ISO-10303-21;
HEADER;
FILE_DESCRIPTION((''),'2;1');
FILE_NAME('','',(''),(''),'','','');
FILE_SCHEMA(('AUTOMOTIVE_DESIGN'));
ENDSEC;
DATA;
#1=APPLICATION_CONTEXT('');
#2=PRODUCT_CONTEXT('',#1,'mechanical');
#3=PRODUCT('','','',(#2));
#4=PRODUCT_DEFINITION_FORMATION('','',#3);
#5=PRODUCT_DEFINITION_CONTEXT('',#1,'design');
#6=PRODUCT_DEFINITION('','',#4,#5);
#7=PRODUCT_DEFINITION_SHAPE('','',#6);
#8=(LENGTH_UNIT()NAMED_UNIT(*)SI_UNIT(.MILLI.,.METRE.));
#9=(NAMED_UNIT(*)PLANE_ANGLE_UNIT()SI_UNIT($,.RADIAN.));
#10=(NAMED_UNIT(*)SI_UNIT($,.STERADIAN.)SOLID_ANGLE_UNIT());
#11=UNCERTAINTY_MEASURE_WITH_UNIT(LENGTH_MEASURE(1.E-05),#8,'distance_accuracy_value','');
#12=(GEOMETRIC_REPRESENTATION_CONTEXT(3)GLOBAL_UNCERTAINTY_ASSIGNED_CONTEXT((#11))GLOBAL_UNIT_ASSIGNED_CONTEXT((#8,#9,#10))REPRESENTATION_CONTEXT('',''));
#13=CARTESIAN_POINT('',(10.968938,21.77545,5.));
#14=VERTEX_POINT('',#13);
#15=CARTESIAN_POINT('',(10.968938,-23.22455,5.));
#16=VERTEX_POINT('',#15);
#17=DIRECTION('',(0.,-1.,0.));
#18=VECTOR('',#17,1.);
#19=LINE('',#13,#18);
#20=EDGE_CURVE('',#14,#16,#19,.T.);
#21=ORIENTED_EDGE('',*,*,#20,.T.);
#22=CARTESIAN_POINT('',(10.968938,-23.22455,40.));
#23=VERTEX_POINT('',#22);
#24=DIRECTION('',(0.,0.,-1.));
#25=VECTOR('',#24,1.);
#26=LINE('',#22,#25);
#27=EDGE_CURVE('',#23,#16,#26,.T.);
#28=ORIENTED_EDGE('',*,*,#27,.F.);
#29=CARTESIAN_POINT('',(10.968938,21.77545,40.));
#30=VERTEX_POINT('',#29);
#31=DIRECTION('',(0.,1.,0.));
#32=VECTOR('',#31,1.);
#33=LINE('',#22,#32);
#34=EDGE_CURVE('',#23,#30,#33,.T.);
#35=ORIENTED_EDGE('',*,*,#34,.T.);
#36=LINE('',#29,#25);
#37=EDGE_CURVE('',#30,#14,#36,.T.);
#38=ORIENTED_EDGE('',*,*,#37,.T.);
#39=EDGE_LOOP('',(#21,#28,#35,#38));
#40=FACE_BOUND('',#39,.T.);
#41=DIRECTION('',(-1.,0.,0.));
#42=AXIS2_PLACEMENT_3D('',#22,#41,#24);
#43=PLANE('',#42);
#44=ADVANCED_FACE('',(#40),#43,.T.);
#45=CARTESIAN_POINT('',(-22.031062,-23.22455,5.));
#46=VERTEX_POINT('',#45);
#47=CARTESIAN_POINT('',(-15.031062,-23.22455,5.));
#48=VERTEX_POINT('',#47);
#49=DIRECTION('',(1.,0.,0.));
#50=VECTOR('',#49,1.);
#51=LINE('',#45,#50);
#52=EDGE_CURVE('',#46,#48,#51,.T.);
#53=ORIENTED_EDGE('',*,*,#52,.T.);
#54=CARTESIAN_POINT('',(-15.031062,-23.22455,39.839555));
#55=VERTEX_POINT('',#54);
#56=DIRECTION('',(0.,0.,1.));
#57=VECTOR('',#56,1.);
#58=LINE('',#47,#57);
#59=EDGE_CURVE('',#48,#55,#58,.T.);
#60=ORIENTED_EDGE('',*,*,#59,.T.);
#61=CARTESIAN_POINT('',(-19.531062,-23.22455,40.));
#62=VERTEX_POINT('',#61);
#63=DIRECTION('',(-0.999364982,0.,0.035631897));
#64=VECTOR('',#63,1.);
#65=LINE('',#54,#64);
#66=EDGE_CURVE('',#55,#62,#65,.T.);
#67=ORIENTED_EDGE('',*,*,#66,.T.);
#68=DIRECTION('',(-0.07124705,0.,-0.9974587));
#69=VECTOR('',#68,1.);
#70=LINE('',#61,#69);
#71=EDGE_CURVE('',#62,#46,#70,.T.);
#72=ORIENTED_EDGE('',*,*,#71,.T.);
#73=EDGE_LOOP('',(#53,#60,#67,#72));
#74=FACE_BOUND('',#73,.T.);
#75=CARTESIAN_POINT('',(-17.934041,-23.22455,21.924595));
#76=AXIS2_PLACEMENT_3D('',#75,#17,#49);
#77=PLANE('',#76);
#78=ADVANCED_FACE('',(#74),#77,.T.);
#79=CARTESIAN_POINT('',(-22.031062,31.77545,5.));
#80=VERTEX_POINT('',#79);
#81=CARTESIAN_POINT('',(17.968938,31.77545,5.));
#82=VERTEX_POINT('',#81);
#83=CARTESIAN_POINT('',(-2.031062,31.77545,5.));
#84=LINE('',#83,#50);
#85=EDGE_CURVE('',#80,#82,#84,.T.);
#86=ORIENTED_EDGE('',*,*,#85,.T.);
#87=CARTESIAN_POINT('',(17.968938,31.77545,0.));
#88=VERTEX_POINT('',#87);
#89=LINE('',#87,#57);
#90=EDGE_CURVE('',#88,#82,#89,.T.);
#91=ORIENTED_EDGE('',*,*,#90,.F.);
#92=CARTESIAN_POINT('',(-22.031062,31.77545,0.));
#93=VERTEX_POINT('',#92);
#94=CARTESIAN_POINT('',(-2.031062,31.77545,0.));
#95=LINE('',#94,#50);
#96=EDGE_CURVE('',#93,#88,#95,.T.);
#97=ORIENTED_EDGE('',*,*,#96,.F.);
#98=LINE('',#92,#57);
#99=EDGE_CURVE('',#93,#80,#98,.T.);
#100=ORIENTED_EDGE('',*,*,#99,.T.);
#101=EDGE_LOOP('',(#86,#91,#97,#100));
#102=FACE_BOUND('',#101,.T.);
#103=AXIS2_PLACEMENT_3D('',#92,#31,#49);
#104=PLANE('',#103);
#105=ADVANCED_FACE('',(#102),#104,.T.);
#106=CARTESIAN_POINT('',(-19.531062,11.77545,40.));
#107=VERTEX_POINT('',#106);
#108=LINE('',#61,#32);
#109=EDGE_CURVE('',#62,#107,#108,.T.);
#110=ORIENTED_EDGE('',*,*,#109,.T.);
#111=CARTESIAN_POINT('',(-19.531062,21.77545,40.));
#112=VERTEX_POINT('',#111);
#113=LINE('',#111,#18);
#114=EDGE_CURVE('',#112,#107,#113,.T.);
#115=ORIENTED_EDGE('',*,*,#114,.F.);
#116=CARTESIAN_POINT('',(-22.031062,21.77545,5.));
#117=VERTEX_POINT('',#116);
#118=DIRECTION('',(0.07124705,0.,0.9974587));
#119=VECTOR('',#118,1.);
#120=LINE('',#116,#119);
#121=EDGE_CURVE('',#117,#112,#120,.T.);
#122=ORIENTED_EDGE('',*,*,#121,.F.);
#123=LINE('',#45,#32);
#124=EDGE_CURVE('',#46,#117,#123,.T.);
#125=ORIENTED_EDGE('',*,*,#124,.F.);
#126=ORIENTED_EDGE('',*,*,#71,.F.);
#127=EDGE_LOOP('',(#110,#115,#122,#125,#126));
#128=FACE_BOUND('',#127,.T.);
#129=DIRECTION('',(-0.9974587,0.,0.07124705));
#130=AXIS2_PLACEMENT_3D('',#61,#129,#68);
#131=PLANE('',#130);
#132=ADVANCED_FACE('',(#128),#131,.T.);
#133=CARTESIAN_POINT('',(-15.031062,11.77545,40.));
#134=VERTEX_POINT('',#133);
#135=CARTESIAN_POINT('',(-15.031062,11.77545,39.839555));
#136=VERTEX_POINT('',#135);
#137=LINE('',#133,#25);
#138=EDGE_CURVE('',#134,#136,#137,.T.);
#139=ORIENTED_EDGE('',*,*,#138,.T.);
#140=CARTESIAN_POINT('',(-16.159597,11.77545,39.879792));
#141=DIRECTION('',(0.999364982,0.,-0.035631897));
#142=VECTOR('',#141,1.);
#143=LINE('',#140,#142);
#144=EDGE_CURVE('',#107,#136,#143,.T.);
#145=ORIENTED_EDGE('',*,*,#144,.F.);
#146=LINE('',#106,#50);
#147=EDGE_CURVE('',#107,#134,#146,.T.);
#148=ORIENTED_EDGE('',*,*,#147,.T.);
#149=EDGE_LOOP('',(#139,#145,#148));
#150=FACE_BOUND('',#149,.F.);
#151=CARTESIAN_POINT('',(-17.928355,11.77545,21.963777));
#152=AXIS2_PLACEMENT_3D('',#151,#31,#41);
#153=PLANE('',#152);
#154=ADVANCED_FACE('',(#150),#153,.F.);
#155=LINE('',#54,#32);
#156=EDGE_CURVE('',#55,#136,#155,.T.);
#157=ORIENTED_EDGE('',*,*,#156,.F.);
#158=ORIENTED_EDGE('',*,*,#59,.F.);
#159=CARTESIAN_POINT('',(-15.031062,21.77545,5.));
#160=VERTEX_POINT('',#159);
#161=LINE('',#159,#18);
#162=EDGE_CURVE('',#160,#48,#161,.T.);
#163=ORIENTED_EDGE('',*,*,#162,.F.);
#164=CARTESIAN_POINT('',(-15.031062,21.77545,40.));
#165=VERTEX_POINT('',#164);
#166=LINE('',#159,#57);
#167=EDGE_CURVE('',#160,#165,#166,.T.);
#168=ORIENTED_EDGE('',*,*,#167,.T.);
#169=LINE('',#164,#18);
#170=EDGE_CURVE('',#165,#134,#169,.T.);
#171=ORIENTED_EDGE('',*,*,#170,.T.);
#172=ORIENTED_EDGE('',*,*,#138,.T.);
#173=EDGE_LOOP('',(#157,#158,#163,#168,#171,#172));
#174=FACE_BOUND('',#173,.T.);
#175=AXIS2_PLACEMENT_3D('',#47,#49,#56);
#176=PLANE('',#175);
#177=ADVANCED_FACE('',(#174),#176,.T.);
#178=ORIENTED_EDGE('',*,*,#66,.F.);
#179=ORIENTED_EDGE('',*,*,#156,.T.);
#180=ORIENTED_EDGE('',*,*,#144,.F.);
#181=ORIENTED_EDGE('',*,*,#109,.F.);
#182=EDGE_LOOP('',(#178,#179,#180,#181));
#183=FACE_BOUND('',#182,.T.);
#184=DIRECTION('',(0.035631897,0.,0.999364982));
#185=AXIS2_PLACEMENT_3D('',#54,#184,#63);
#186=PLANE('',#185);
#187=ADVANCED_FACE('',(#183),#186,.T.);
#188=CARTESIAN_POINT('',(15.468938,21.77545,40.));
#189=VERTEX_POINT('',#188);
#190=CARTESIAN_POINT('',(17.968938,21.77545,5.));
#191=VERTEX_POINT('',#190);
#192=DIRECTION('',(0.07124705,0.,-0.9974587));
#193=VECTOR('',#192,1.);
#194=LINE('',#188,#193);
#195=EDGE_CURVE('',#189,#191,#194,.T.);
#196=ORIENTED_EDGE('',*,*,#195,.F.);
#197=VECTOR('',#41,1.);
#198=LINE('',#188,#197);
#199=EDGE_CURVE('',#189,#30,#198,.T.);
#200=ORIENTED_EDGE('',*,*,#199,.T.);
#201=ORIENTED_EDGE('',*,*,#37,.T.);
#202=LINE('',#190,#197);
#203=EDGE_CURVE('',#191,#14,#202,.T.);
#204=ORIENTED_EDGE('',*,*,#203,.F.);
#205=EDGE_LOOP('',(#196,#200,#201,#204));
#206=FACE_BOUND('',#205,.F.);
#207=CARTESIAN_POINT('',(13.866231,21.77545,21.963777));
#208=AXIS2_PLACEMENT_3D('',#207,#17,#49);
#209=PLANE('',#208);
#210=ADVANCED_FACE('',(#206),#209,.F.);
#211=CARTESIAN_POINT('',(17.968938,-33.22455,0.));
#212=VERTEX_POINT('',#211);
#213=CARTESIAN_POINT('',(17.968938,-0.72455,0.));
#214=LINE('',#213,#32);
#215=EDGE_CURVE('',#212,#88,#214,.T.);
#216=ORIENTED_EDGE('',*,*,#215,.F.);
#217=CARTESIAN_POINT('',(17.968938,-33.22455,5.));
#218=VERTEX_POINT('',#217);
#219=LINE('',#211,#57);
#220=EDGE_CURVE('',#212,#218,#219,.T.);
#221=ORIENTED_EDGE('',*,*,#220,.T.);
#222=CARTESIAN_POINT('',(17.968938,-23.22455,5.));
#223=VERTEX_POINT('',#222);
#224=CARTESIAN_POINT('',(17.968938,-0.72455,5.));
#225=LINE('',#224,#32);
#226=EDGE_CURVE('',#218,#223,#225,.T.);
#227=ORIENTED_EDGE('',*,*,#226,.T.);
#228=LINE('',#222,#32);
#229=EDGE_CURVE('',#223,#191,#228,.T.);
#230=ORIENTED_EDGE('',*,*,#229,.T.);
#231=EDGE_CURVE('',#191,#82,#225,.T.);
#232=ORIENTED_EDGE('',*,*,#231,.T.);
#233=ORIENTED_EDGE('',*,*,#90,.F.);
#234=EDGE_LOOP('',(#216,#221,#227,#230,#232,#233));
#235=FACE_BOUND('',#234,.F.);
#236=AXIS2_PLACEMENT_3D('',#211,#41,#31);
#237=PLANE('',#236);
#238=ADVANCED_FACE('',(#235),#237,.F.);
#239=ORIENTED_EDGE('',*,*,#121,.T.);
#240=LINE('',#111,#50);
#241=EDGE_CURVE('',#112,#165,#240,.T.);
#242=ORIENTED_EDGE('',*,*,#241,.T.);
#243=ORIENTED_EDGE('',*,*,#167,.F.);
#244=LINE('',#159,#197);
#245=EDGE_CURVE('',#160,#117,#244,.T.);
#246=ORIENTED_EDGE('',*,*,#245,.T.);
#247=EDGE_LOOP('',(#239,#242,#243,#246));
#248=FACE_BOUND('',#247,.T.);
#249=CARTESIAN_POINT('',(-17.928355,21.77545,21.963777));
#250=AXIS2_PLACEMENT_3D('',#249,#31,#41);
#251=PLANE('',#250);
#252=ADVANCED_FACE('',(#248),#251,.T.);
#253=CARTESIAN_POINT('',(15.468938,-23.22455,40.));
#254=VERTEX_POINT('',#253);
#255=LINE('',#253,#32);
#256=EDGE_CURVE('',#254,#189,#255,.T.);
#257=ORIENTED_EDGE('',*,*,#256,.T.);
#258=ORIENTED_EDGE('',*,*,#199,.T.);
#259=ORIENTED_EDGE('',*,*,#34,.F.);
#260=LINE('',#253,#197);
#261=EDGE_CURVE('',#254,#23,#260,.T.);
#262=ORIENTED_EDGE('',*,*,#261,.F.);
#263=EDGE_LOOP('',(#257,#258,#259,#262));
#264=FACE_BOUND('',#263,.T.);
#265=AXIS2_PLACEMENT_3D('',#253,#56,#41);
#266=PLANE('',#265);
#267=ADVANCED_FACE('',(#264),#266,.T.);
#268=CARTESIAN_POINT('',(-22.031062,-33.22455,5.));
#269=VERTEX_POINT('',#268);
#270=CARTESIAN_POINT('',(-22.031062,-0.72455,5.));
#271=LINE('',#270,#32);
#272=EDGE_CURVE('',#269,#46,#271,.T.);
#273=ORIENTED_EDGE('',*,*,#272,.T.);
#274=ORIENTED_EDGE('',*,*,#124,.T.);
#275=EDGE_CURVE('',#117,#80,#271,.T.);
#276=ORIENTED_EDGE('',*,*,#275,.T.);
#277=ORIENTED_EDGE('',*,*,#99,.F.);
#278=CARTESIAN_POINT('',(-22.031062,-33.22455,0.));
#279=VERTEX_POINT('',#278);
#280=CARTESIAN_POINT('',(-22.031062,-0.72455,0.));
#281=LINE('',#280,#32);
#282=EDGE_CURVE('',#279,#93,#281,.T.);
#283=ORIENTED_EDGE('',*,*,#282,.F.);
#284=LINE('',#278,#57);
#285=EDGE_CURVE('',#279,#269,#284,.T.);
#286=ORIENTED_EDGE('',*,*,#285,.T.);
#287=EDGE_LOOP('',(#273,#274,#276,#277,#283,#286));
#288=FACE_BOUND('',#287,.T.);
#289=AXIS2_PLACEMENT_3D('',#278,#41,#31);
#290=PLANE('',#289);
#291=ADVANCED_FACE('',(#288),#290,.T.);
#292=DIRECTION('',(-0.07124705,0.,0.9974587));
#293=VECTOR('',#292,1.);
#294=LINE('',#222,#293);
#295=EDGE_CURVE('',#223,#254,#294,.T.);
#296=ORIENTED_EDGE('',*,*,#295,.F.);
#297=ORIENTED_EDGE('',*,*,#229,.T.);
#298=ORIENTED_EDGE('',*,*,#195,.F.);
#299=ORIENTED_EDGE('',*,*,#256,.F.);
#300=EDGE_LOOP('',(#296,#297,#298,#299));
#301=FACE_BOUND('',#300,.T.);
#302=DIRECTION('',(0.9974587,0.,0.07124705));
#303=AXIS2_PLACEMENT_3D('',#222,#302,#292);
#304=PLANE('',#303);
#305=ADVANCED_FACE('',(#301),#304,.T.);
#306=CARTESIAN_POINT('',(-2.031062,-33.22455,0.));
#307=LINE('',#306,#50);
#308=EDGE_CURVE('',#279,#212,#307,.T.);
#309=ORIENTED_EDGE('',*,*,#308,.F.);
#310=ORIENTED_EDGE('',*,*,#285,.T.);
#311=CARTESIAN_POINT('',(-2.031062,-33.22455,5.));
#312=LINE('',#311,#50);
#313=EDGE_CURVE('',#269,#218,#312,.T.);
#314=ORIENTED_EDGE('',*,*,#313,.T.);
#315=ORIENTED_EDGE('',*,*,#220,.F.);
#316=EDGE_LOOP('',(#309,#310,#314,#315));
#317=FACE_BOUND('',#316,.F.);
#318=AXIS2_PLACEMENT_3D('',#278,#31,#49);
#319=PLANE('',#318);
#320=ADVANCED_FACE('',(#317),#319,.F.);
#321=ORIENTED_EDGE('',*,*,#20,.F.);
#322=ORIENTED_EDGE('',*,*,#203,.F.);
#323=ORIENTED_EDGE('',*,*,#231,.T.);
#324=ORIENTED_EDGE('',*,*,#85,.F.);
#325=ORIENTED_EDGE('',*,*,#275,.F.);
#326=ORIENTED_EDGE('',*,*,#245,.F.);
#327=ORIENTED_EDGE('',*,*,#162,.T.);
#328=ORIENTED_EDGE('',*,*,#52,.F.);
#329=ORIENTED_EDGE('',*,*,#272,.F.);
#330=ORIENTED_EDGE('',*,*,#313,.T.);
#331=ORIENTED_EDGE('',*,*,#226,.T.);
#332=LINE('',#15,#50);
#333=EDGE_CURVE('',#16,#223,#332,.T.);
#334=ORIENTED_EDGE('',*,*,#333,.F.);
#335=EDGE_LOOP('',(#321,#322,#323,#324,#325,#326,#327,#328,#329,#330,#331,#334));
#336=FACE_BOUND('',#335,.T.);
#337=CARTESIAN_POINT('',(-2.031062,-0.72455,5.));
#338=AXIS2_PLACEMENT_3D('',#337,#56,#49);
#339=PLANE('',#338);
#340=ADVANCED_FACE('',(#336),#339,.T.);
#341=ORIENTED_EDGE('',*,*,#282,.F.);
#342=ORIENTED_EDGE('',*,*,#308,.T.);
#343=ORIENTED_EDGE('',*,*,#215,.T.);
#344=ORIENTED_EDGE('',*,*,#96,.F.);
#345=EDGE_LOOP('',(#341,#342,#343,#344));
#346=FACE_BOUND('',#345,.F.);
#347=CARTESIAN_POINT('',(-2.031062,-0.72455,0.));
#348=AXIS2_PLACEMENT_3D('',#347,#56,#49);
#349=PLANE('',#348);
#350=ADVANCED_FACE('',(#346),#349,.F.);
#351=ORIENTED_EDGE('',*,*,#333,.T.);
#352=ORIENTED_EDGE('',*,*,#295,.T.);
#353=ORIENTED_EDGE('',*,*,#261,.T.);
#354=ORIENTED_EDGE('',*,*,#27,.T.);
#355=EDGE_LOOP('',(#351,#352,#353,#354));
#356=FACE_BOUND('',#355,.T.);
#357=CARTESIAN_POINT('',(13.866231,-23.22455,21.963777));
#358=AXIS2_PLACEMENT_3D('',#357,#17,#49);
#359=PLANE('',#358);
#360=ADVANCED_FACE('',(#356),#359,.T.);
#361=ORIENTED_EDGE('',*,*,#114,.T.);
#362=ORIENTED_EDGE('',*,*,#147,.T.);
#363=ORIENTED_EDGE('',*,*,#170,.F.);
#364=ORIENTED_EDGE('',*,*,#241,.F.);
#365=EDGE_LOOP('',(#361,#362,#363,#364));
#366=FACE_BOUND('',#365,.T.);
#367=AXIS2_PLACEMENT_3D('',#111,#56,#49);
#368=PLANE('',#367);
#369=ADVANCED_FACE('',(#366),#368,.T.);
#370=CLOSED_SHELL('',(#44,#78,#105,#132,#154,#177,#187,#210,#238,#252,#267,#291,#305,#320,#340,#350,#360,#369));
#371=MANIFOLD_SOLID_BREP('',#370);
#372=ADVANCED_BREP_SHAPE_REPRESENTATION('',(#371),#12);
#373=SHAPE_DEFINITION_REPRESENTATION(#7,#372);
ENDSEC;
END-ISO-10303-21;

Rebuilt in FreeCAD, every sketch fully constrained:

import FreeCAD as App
import Part
import Sketcher
from FreeCAD import Vector


def add_polygon(sketch, points):
    """Adds a closed chain of lines whose ends are joined by coincident constraints."""
    first, n = sketch.GeometryCount, len(points)
    for a, b in zip(points, points[1:] + points[:1]):
        sketch.addGeometry(Part.LineSegment(App.Vector(*a, 0), App.Vector(*b, 0)), False)
    for i in range(n):
        sketch.addConstraint(Sketcher.Constraint("Coincident", first + i, 2, first + (i + 1) % n, 1))

doc = App.newDocument("Part")
body = doc.addObject("PartDesign::Body", "Body")

# Sketch on XY plane
sketch1 = body.newObject("Sketcher::SketchObject", "Sketch")
sketch1.AttachmentSupport = (doc.getObject("XY_Plane"), [""])
sketch1.MapMode = "FlatFace"
add_polygon(sketch1, [(-22, 32), (-22, -33), (18, -33), (18, 32)])  # lines 0-3
sketch1.addConstraint(Sketcher.Constraint("Vertical", 0))
sketch1.addConstraint(Sketcher.Constraint("Horizontal", 1))
sketch1.addConstraint(Sketcher.Constraint("Vertical", 2))
sketch1.addConstraint(Sketcher.Constraint("Horizontal", 3))
sketch1.addConstraint(Sketcher.Constraint("DistanceX", 1, 1, 1, 2, 40.0))
sketch1.addConstraint(Sketcher.Constraint("DistanceY", 0, 2, 0, 1, 65.0))
sketch1.addConstraint(Sketcher.Constraint("DistanceX", 0, 2, -1, 1, 22.031062))
sketch1.addConstraint(Sketcher.Constraint("DistanceY", 0, 2, -1, 1, 33.22455))
pad1 = body.newObject("PartDesign::Pad", "Pad")
pad1.Profile = sketch1
pad1.Length = 5

# Sketch on XZ plane
sketch2 = body.newObject("Sketcher::SketchObject", "Sketch001")
sketch2.AttachmentSupport = (doc.getObject("XZ_Plane"), [""])
sketch2.MapMode = "FlatFace"
sketch2.AttachmentOffset = App.Placement(Vector(0, 0, -21.77545), App.Rotation())
add_polygon(sketch2, [(-15, 40), (-15, 5), (-22, 5), (-19.5, 40)])  # lines 0-3
add_polygon(sketch2, [(18, 5), (11, 5), (11, 39.8), (15.5, 40)])  # lines 4-7
sketch2.addConstraint(Sketcher.Constraint("Vertical", 0))
sketch2.addConstraint(Sketcher.Constraint("Horizontal", 1))
sketch2.addConstraint(Sketcher.Constraint("Horizontal", 3))
sketch2.addConstraint(Sketcher.Constraint("Horizontal", 4))
sketch2.addConstraint(Sketcher.Constraint("Vertical", 5))
sketch2.addConstraint(Sketcher.Constraint("Horizontal", 1, 2, 4, 2))
sketch2.addConstraint(Sketcher.Constraint("Horizontal", 3, 2, 6, 2))
sketch2.addConstraint(Sketcher.Constraint("Equal", 1, 4))
sketch2.addConstraint(Sketcher.Constraint("Equal", 2, 7))
sketch2.addConstraint(Sketcher.Constraint("DistanceX", 1, 2, 1, 1, 7.0))
sketch2.addConstraint(Sketcher.Constraint("DistanceY", 0, 2, 0, 1, 35.0))
sketch2.addConstraint(Sketcher.Constraint("DistanceX", 3, 1, 3, 2, 4.5))
sketch2.addConstraint(Sketcher.Constraint("DistanceY", -1, 1, 0, 2, 5.0))
sketch2.addConstraint(Sketcher.Constraint("DistanceX", 0, 2, 4, 2, 26.0))
sketch2.addConstraint(Sketcher.Constraint("Distance", 6, 4.502859))
sketch2.addConstraint(Sketcher.Constraint("DistanceX", 0, 2, -1, 1, 15.031062))
pad2 = body.newObject("PartDesign::Pad", "Pad001")
pad2.Profile = sketch2
pad2.Length = 10

# Sketch on XZ plane
sketch3 = body.newObject("Sketcher::SketchObject", "Sketch002")
sketch3.AttachmentSupport = (doc.getObject("XZ_Plane"), [""])
sketch3.MapMode = "FlatFace"
sketch3.AttachmentOffset = App.Placement(Vector(0, 0, 23.22455), App.Rotation())
add_polygon(sketch3, [(11, 40), (11, 5), (18, 5), (15.5, 40)])  # lines 0-3
add_polygon(sketch3, [(-22, 5), (-15, 5), (-15, 39.8), (-19.5, 40)])  # lines 4-7
sketch3.addConstraint(Sketcher.Constraint("Vertical", 0))
sketch3.addConstraint(Sketcher.Constraint("Horizontal", 1))
sketch3.addConstraint(Sketcher.Constraint("Horizontal", 3))
sketch3.addConstraint(Sketcher.Constraint("Horizontal", 4))
sketch3.addConstraint(Sketcher.Constraint("Vertical", 5))
sketch3.addConstraint(Sketcher.Constraint("Horizontal", 1, 2, 4, 2))
sketch3.addConstraint(Sketcher.Constraint("Horizontal", 3, 2, 6, 2))
sketch3.addConstraint(Sketcher.Constraint("Equal", 1, 4))
sketch3.addConstraint(Sketcher.Constraint("Equal", 2, 7))
sketch3.addConstraint(Sketcher.Constraint("DistanceX", 1, 1, 1, 2, 7.0))
sketch3.addConstraint(Sketcher.Constraint("DistanceY", 0, 2, 0, 1, 35.0))
sketch3.addConstraint(Sketcher.Constraint("DistanceX", 3, 2, 3, 1, 4.5))
sketch3.addConstraint(Sketcher.Constraint("DistanceY", -1, 1, 0, 2, 5.0))
sketch3.addConstraint(Sketcher.Constraint("DistanceX", 4, 2, 0, 2, 26.0))
sketch3.addConstraint(Sketcher.Constraint("Distance", 6, 4.502859))
sketch3.addConstraint(Sketcher.Constraint("DistanceX", -1, 1, 0, 2, 10.968938))
pad3 = body.newObject("PartDesign::Pad", "Pad002")
pad3.Profile = sketch3
pad3.Length = 45
pad3.Reversed = True

doc.recompute()
